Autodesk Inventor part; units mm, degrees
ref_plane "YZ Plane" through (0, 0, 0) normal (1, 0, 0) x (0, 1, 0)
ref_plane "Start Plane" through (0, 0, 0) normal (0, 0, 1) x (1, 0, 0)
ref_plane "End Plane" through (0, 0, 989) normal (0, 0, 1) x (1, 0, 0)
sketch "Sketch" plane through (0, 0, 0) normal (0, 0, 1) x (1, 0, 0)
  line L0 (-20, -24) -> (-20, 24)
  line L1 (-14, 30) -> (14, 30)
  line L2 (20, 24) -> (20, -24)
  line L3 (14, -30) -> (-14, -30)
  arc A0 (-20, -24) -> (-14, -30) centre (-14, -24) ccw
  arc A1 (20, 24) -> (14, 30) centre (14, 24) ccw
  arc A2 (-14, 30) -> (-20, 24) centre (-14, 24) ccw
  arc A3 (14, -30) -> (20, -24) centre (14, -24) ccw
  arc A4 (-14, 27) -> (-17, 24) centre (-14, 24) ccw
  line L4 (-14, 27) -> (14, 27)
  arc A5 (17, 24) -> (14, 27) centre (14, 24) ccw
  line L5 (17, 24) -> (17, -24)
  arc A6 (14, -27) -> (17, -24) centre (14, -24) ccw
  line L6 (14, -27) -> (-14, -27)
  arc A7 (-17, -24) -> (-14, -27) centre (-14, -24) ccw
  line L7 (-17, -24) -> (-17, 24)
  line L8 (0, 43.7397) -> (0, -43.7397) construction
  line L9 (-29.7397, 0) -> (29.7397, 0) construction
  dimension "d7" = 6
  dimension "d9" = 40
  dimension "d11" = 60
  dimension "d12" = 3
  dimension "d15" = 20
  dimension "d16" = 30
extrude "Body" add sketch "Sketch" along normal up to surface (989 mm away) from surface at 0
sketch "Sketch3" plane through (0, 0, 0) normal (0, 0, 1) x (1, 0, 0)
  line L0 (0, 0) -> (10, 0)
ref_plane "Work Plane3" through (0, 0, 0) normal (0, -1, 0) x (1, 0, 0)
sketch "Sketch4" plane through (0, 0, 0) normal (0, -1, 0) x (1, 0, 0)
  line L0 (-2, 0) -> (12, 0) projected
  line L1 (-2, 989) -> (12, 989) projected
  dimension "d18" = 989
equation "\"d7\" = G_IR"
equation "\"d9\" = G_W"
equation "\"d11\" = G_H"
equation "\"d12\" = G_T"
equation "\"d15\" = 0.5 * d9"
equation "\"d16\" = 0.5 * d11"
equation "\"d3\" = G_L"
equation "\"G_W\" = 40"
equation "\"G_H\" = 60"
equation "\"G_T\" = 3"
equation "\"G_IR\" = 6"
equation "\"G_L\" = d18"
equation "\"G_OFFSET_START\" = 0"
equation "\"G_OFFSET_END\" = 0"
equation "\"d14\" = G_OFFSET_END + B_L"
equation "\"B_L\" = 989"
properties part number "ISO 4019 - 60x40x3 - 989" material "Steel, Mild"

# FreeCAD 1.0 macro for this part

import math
import FreeCAD as App
import Part
import Sketcher

V = App.Vector

doc = App.newDocument("Part")
body = doc.addObject("PartDesign::Body", "Body")

# Sketch on XY plane
sketch1 = body.newObject("Sketcher::SketchObject", "Sketch")
sketch1.AttachmentSupport = (doc.getObject("XY_Plane"), [""])
sketch1.MapMode = "FlatFace"
sketch1.addGeometry(Part.LineSegment(V(-20, 24, 0), V(-20, -24, 0)), False)
sketch1.addGeometry(Part.ArcOfCircle(Part.Circle(V(-14, -24, 0), V(0, 0, 1), 6), math.radians(180), math.radians(270)), False)
sketch1.addGeometry(Part.LineSegment(V(-14, -30, 0), V(14, -30, 0)), False)
sketch1.addGeometry(Part.ArcOfCircle(Part.Circle(V(14, -24, 0), V(0, 0, 1), 6), math.radians(-90), math.radians(0)), False)
sketch1.addGeometry(Part.LineSegment(V(20, -24, 0), V(20, 24, 0)), False)
sketch1.addGeometry(Part.ArcOfCircle(Part.Circle(V(14, 24, 0), V(0, 0, 1), 6), math.radians(0), math.radians(90)), False)
sketch1.addGeometry(Part.LineSegment(V(14, 30, 0), V(-14, 30, 0)), False)
sketch1.addGeometry(Part.ArcOfCircle(Part.Circle(V(-14, 24, 0), V(0, 0, 1), 6), math.radians(90), math.radians(180)), False)
sketch1.addGeometry(Part.ArcOfCircle(Part.Circle(V(-14, 24, 0), V(0, 0, 1), 3), math.radians(90), math.radians(180)), False)
sketch1.addGeometry(Part.LineSegment(V(-14, 27, 0), V(14, 27, 0)), False)
sketch1.addGeometry(Part.ArcOfCircle(Part.Circle(V(14, 24, 0), V(0, 0, 1), 3), math.radians(0), math.radians(90)), False)
sketch1.addGeometry(Part.LineSegment(V(17, 24, 0), V(17, -24, 0)), False)
sketch1.addGeometry(Part.ArcOfCircle(Part.Circle(V(14, -24, 0), V(0, 0, 1), 3), math.radians(-90), math.radians(0)), False)
sketch1.addGeometry(Part.LineSegment(V(14, -27, 0), V(-14, -27, 0)), False)
sketch1.addGeometry(Part.ArcOfCircle(Part.Circle(V(-14, -24, 0), V(0, 0, 1), 3), math.radians(180), math.radians(270)), False)
sketch1.addGeometry(Part.LineSegment(V(-17, -24, 0), V(-17, 24, 0)), False)
sketch1.addConstraint(Sketcher.Constraint("Tangent", 0, 2, 1, 1))
sketch1.addConstraint(Sketcher.Constraint("Tangent", 1, 2, 2, 1))
sketch1.addConstraint(Sketcher.Constraint("Tangent", 2, 2, 3, 1))
sketch1.addConstraint(Sketcher.Constraint("Tangent", 3, 2, 4, 1))
sketch1.addConstraint(Sketcher.Constraint("Tangent", 4, 2, 5, 1))
sketch1.addConstraint(Sketcher.Constraint("Tangent", 5, 2, 6, 1))
sketch1.addConstraint(Sketcher.Constraint("Tangent", 6, 2, 7, 1))
sketch1.addConstraint(Sketcher.Constraint("Tangent", 7, 2, 0, 1))
sketch1.addConstraint(Sketcher.Constraint("Tangent", 8, 1, 9, 1))
sketch1.addConstraint(Sketcher.Constraint("Tangent", 9, 2, 10, 2))
sketch1.addConstraint(Sketcher.Constraint("Tangent", 10, 1, 11, 1))
sketch1.addConstraint(Sketcher.Constraint("Tangent", 11, 2, 12, 2))
sketch1.addConstraint(Sketcher.Constraint("Tangent", 12, 1, 13, 1))
sketch1.addConstraint(Sketcher.Constraint("Tangent", 13, 2, 14, 2))
sketch1.addConstraint(Sketcher.Constraint("Tangent", 14, 1, 15, 1))
sketch1.addConstraint(Sketcher.Constraint("Tangent", 15, 2, 8, 2))
sketch1.addConstraint(Sketcher.Constraint("Vertical", 0))
sketch1.addConstraint(Sketcher.Constraint("Horizontal", 2))
sketch1.addConstraint(Sketcher.Constraint("Vertical", 4))
sketch1.addConstraint(Sketcher.Constraint("Horizontal", 6))
sketch1.addConstraint(Sketcher.Constraint("Horizontal", 9))
sketch1.addConstraint(Sketcher.Constraint("Vertical", 11))
sketch1.addConstraint(Sketcher.Constraint("Horizontal", 13))
sketch1.addConstraint(Sketcher.Constraint("Vertical", 15))
sketch1.addConstraint(Sketcher.Constraint("Coincident", 8, 3, 7, 3))
sketch1.addConstraint(Sketcher.Constraint("Coincident", 10, 3, 5, 3))
sketch1.addConstraint(Sketcher.Constraint("Coincident", 12, 3, 3, 3))
sketch1.addConstraint(Sketcher.Constraint("Equal", 1, 3))
sketch1.addConstraint(Sketcher.Constraint("Equal", 3, 5))
sketch1.addConstraint(Sketcher.Constraint("Equal", 5, 7))
sketch1.addConstraint(Sketcher.Constraint("Equal", 12, 14))
sketch1.addConstraint(Sketcher.Constraint("Symmetric", 1, 3, 5, 3, -1, 1))
sketch1.addConstraint(Sketcher.Constraint("Radius", 1, 6.0))
sketch1.addConstraint(Sketcher.Constraint("Radius", 8, 3.0))
sketch1.addConstraint(Sketcher.Constraint("DistanceX", 0, 2, -1, 1, 20.0))
sketch1.addConstraint(Sketcher.Constraint("DistanceY", 1, 2, -1, 1, 30.0))
pad1 = body.newObject("PartDesign::Pad", "Pad")
pad1.Profile = sketch1
pad1.Length = 989

doc.recompute()
